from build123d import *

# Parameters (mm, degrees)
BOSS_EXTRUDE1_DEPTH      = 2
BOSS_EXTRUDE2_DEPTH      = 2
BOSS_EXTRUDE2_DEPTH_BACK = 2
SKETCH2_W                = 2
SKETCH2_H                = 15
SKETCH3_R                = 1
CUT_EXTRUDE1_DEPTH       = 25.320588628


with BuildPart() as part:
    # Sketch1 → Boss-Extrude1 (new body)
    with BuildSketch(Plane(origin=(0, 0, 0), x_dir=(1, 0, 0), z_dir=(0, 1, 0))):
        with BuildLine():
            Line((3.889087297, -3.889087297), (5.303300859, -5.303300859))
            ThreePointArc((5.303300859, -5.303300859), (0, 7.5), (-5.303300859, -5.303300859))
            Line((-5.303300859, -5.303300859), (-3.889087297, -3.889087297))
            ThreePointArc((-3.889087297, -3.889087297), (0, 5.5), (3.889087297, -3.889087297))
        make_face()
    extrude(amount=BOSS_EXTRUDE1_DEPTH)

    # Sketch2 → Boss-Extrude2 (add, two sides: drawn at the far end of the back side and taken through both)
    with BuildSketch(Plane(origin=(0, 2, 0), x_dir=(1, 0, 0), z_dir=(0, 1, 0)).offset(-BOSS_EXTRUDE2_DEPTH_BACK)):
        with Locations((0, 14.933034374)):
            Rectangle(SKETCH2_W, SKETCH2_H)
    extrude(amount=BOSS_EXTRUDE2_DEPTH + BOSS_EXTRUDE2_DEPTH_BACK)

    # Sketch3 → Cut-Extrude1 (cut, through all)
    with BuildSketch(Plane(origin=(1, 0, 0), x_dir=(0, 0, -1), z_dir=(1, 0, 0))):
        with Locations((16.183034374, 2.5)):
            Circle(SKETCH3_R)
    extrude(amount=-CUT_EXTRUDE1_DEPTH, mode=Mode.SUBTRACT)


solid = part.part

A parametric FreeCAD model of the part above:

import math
import FreeCAD as App
import Part
import Sketcher

V = App.Vector
Q = App.Units.Quantity

doc = App.newDocument("Part")
body = doc.addObject("PartDesign::Body", "Body")

sketch1 = body.newObject("Sketcher::SketchObject", "Sketch")
sketch1.AttachmentSupport = (doc.getObject("XZ_Plane"), [""])
sketch1.MapMode = "FlatFace"
sketch1.addGeometry(Part.LineSegment(V(3.9, 3.9, 0), V(5.3, 5.3, 0)), False)
sketch1.addGeometry(Part.ArcOfCircle(Part.Circle(V(0, 0, 0), V(0, 0, 1), 7.5), math.radians(135), math.radians(405)), False)
sketch1.addGeometry(Part.LineSegment(V(-5.3, 5.3, 0), V(-3.9, 3.9, 0)), False)
sketch1.addGeometry(Part.ArcOfCircle(Part.Circle(V(0, 0, 0), V(0, 0, 1), 5.5), math.radians(135), math.radians(405)), False)
sketch1.addConstraint(Sketcher.Constraint("Coincident", 0, 2, 1, 2))
sketch1.addConstraint(Sketcher.Constraint("Coincident", 1, 1, 2, 1))
sketch1.addConstraint(Sketcher.Constraint("Coincident", 2, 2, 3, 1))
sketch1.addConstraint(Sketcher.Constraint("Coincident", 3, 2, 0, 1))
sketch1.addConstraint(Sketcher.Constraint("Coincident", 1, 3, -1, 1))
sketch1.addConstraint(Sketcher.Constraint("Coincident", 3, 3, -1, 1))
sketch1.addConstraint(Sketcher.Constraint("Perpendicular", 0, 2))
sketch1.addConstraint(Sketcher.Constraint("Horizontal", 0, 2, 1, 1))
sketch1.addConstraint(Sketcher.Constraint("Horizontal", 2, 2, 3, 2))
sketch1.addConstraint(Sketcher.Constraint("Radius", 1, Q("7.5 mm")))
sketch1.addConstraint(Sketcher.Constraint("Radius", 3, Q("5.5 mm")))
sketch1.addConstraint(Sketcher.Constraint("DistanceX", -1, 1, 0, 2, Q("5.303301 mm")))
pad1 = body.newObject("PartDesign::Pad", "Pad")
pad1.Profile = sketch1
pad1.Length = 2
pad1.Reversed = True

sketch2 = body.newObject("Sketcher::SketchObject", "Sketch001")
sketch2.AttachmentSupport = (doc.getObject("XZ_Plane"), [""])
sketch2.MapMode = "FlatFace"
sketch2.AttachmentOffset = App.Placement(V(0, 0, -2), App.Rotation())
sketch2.addGeometry(Part.LineSegment(V(-1, -22.4, 0), V(-1, -7.4, 0)), False)
sketch2.addGeometry(Part.LineSegment(V(-1, -7.4, 0), V(1, -7.4, 0)), False)
sketch2.addGeometry(Part.LineSegment(V(1, -7.4, 0), V(1, -22.4, 0)), False)
sketch2.addGeometry(Part.LineSegment(V(1, -22.4, 0), V(-1, -22.4, 0)), False)
sketch2.addConstraint(Sketcher.Constraint("Coincident", 0, 2, 1, 1))
sketch2.addConstraint(Sketcher.Constraint("Coincident", 1, 2, 2, 1))
sketch2.addConstraint(Sketcher.Constraint("Coincident", 2, 2, 3, 1))
sketch2.addConstraint(Sketcher.Constraint("Coincident", 3, 2, 0, 1))
sketch2.addConstraint(Sketcher.Constraint("Vertical", 0))
sketch2.addConstraint(Sketcher.Constraint("Horizontal", 1))
sketch2.addConstraint(Sketcher.Constraint("Vertical", 2))
sketch2.addConstraint(Sketcher.Constraint("Horizontal", 3))
sketch2.addConstraint(Sketcher.Constraint("DistanceX", 1, 1, 1, 2, Q("2 mm")))
sketch2.addConstraint(Sketcher.Constraint("DistanceY", 0, 1, 0, 2, Q("15 mm")))
sketch2.addConstraint(Sketcher.Constraint("DistanceX", 0, 2, -1, 1, Q("1 mm")))
sketch2.addConstraint(Sketcher.Constraint("DistanceY", 0, 2, -1, 1, Q("7.433034 mm")))
pad2 = body.newObject("PartDesign::Pad", "Pad001")
pad2.Profile = sketch2
pad2.Type = "TwoLengths"
pad2.Length = 2
pad2.Length2 = 2
pad2.Reversed = True

sketch3 = body.newObject("Sketcher::SketchObject", "Sketch002")
sketch3.AttachmentSupport = (doc.getObject("YZ_Plane"), [""])
sketch3.MapMode = "FlatFace"
sketch3.AttachmentOffset = App.Placement(V(0, 0, 1), App.Rotation())
sketch3.addGeometry(Part.Circle(V(2.5, -16.2, 0), V(0, 0, 1), 1), False)
sketch3.addConstraint(Sketcher.Constraint("Diameter", 0, Q("2 mm")))
sketch3.addConstraint(Sketcher.Constraint("DistanceX", -1, 1, 0, 3, Q("2.5 mm")))
sketch3.addConstraint(Sketcher.Constraint("DistanceY", 0, 3, -1, 1, Q("16.183034 mm")))
pocket1 = body.newObject("PartDesign::Pocket", "Pocket")
pocket1.Profile = sketch3
pocket1.Type = "ThroughAll"

doc.recompute()
